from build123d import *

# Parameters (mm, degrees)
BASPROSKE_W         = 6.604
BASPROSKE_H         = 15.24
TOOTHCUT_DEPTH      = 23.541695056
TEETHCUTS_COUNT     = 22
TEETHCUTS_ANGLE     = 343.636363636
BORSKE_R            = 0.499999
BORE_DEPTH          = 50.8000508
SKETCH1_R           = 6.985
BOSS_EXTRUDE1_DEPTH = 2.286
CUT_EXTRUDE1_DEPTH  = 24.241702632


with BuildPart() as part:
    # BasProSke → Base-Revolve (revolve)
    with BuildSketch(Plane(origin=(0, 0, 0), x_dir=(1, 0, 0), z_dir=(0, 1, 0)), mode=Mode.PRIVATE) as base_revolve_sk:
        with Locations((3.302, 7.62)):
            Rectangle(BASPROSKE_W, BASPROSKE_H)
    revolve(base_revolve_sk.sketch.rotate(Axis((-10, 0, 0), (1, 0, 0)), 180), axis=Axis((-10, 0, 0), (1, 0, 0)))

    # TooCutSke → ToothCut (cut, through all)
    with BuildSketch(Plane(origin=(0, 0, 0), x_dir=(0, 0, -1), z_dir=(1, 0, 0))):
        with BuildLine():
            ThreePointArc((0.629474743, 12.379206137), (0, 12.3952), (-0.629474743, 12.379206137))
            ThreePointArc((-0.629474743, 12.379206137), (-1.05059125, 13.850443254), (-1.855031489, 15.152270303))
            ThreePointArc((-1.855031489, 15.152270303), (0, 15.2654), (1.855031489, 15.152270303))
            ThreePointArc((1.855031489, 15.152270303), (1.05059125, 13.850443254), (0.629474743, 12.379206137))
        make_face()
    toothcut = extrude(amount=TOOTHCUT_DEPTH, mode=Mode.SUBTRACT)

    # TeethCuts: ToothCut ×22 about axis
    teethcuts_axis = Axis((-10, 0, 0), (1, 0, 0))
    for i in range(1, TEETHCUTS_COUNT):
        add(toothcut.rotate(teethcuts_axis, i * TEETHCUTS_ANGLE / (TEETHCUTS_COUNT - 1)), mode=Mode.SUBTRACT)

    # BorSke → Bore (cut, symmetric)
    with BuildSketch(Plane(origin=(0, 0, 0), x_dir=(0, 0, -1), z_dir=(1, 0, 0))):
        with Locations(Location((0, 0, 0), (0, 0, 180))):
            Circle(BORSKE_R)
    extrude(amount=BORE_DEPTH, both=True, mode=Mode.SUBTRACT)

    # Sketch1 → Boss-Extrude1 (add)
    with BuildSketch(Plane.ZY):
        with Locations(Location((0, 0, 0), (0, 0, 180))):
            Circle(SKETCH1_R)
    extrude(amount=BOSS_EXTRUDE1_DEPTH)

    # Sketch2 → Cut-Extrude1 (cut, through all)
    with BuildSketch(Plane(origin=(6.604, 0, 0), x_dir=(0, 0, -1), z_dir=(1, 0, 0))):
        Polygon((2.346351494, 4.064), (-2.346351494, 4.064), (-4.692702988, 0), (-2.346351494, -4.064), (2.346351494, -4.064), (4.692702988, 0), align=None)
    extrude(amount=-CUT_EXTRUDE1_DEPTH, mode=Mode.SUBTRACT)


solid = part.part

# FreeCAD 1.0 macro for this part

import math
import FreeCAD as App
import Part
import Sketcher

V = App.Vector
Q = App.Units.Quantity


def add_polygon(sketch, points):
    """Adds a closed chain of lines whose ends are joined by coincident constraints."""
    first, n = sketch.GeometryCount, len(points)
    for a, b in zip(points, points[1:] + points[:1]):
        sketch.addGeometry(Part.LineSegment(App.Vector(*a, 0), App.Vector(*b, 0)), False)
    for i in range(n):
        sketch.addConstraint(Sketcher.Constraint("Coincident", first + i, 2, first + (i + 1) % n, 1))

doc = App.newDocument("Part")
body = doc.addObject("PartDesign::Body", "Body")

# Sketch on XZ plane
sketch1 = body.newObject("Sketcher::SketchObject", "Sketch")
sketch1.AttachmentSupport = (doc.getObject("XZ_Plane"), [""])
sketch1.MapMode = "FlatFace"
add_polygon(sketch1, [(0, -15), (0, 0), (7, 0), (7, -15)])  # lines 0-3
sketch1.addConstraint([
    Sketcher.Constraint("Vertical", 0),
    Sketcher.Constraint("Horizontal", 1),
    Sketcher.Constraint("Vertical", 2),
    Sketcher.Constraint("Horizontal", 3),
    Sketcher.Constraint("Coincident", 0, 2, -1, 1),
    Sketcher.Constraint("DistanceY", 0, 1, 0, 2, Q("0.6 in")),
    Sketcher.Constraint("DistanceX", 1, 1, 1, 2, Q("0.26 in")),
])
revolution = body.newObject("PartDesign::Revolution", "Revolution")
revolution.Profile = sketch1
revolution.ReferenceAxis = (sketch1, ["H_Axis"])
revolution.Angle = 360

# Sketch on YZ plane
sketch2 = body.newObject("Sketcher::SketchObject", "Sketch001")
sketch2.AttachmentSupport = (doc.getObject("YZ_Plane"), [""])
sketch2.MapMode = "FlatFace"
sketch2.addGeometry([
    Part.ArcOfCircle(Part.Circle(V(0, 0, 0), V(0, 0, 1), 12.4), math.radians(-2.91), math.radians(2.91)),
    Part.ArcOfCircle(Part.Circle(V(11.6, -6.2, 0), V(0, 0, 1), 5.6), math.radians(50), math.radians(82)),
    Part.ArcOfCircle(Part.Circle(V(0, 0, 0), V(0, 0, 1), 15.3), math.radians(-6.98), math.radians(6.98)),
    Part.ArcOfCircle(Part.Circle(V(11.6, 6.2, 0), V(0, 0, 1), 5.6), math.radians(-82), math.radians(-50)),
], False)
sketch2.addConstraint([
    Sketcher.Constraint("Coincident", 0, 1, 1, 2),
    Sketcher.Constraint("Coincident", 1, 1, 2, 1),
    Sketcher.Constraint("Coincident", 2, 2, 3, 2),
    Sketcher.Constraint("Coincident", 3, 1, 0, 2),
    Sketcher.Constraint("Coincident", 0, 3, -1, 1),
    Sketcher.Constraint("Coincident", 2, 3, -1, 1),
    Sketcher.Constraint("Equal", 1, 3),
    Sketcher.Constraint("Symmetric", 1, 3, 3, 3, -1),
    Sketcher.Constraint("Radius", 1, Q("0.22 in")),
    Sketcher.Constraint("Radius", 0, Q("0.488 in")),
    Sketcher.Constraint("Radius", 2, Q("0.601 in")),
    Sketcher.Constraint("DistanceX", -1, 1, 1, 3, Q("11.591591 mm")),
    Sketcher.Constraint("DistanceY", 1, 3, -1, 1, Q("6.16169 mm")),
])
pocket1 = body.newObject("PartDesign::Pocket", "Pocket")
pocket1.Profile = sketch2
pocket1.Type = "ThroughAll"
pocket1.Reversed = True
doc.recompute()

polarpattern = body.newObject("PartDesign::PolarPattern", "PolarPattern")
polarpattern.Originals = [pocket1]
polarpattern.Axis = (doc.getObject("X_Axis"), [""])
polarpattern.Angle = 360
polarpattern.Occurrences = 22
body.Tip = polarpattern

# Sketch on YZ plane
sketch3 = body.newObject("Sketcher::SketchObject", "Sketch002")
sketch3.AttachmentSupport = (doc.getObject("YZ_Plane"), [""])
sketch3.MapMode = "FlatFace"
sketch3.addGeometry(Part.Circle(V(0, 0, 0), V(0, 0, 1), 0.5), False)
sketch3.addConstraint([
    Sketcher.Constraint("Coincident", 0, 3, -1, 1),
    Sketcher.Constraint("Diameter", 0, Q("0.999998 mm")),
])
pocket2 = body.newObject("PartDesign::Pocket", "Pocket001")
pocket2.Profile = sketch3
pocket2.Length = 101.600102
pocket2.Midplane = True

# Sketch on YZ plane
sketch4 = body.newObject("Sketcher::SketchObject", "Sketch003")
sketch4.AttachmentSupport = (doc.getObject("YZ_Plane"), [""])
sketch4.MapMode = "FlatFace"
sketch4.addGeometry(Part.Circle(V(0, 0, 0), V(0, 0, 1), 7), False)
sketch4.addConstraint([
    Sketcher.Constraint("Coincident", 0, 3, -1, 1),
    Sketcher.Constraint("Diameter", 0, Q("0.55 in")),
])
pad1 = body.newObject("PartDesign::Pad", "Pad")
pad1.Profile = sketch4
pad1.Length = Q("0.09 in")
pad1.Reversed = True

# Sketch on YZ plane
sketch5 = body.newObject("Sketcher::SketchObject", "Sketch004")
sketch5.AttachmentSupport = (doc.getObject("YZ_Plane"), [""])
sketch5.MapMode = "FlatFace"
sketch5.AttachmentOffset = App.Placement(V(0, 0, 0.26 * 25.4), App.Rotation())
add_polygon(sketch5, [(4.1, -2.3), (4.1, 2.3), (0, 4.7), (-4.1, 2.3), (-4.1, -2.3), (0, -4.7)])  # lines 0-5
sketch5.addConstraint([
    Sketcher.Constraint("Vertical", 0),
    Sketcher.Constraint("Vertical", 3),
    Sketcher.Constraint("Symmetric", 0, 2, 3, 2, -1, 1),
    Sketcher.Constraint("Symmetric", 1, 2, 4, 2, -1, 1),
    Sketcher.Constraint("PointOnObject", 1, 2, -2),
    Sketcher.Constraint("Parallel", 2, 5),
    Sketcher.Constraint("Horizontal", 0, 2, 2, 2),
    Sketcher.Constraint("Angle", 1, Q("150 deg")),
    Sketcher.Constraint("DistanceX", -1, 1, 0, 2, Q("0.16 in")),
    Sketcher.Constraint("DistanceY", 0, 1, 0, 2, Q("4.692703 mm")),
])
pocket3 = body.newObject("PartDesign::Pocket", "Pocket002")
pocket3.Profile = sketch5
pocket3.Type = "ThroughAll"

doc.recompute()
